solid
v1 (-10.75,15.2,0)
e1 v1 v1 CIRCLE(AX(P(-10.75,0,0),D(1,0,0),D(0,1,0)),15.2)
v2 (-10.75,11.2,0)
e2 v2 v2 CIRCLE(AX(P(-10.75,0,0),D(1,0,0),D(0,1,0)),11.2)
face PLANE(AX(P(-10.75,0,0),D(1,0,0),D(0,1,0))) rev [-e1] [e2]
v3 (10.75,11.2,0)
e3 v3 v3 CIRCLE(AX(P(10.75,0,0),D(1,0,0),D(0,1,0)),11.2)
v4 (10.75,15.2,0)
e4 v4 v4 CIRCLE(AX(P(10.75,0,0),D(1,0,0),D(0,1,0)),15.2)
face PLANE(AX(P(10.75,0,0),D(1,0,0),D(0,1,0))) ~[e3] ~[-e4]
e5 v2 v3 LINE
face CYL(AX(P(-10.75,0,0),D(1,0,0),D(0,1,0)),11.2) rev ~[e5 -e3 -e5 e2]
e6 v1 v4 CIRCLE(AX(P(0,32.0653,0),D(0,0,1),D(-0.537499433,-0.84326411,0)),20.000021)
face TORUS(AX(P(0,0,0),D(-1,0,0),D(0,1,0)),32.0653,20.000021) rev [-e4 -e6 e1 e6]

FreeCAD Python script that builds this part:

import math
import FreeCAD as App
import Part
import Sketcher
Q = App.Units.Quantity

doc = App.newDocument("Part")
body = doc.addObject("PartDesign::Body", "Body")

# Sketch on XY plane
sketch1 = body.newObject("Sketcher::SketchObject", "Sketch")
sketch1.AttachmentSupport = (doc.getObject("XY_Plane"), [""])
sketch1.MapMode = "FlatFace"
sketch1.addGeometry([
    Part.LineSegment(App.Vector(-10.75, 15.2, 0), App.Vector(-10.75, 11.2, 0)),
    Part.LineSegment(App.Vector(-10.75, 11.2, 0), App.Vector(10.75, 11.2, 0)),
    Part.LineSegment(App.Vector(10.75, 11.2, 0), App.Vector(10.75, 15.2, 0)),
    Part.ArcOfCircle(Part.Circle(App.Vector(0, 32.0653, 0), App.Vector(0, 0, 1), 20.000021), math.radians(-122.513576), math.radians(-57.486424)),
], False)
sketch1.addConstraint([
    Sketcher.Constraint("Coincident", 0, 2, 1, 1),
    Sketcher.Constraint("Coincident", 1, 2, 2, 1),
    Sketcher.Constraint("Coincident", 2, 2, 3, 2),
    Sketcher.Constraint("Coincident", 3, 1, 0, 1),
    Sketcher.Constraint("Vertical", 0),
    Sketcher.Constraint("Horizontal", 1),
    Sketcher.Constraint("Vertical", 2),
    Sketcher.Constraint("Symmetric", 2, 2, 3, 1, -2),
    Sketcher.Constraint("Radius", 3, Q("20 mm")),
    Sketcher.Constraint("DistanceY", 0, 2, 0, 1, Q("4 mm")),
    Sketcher.Constraint("DistanceX", 1, 1, 1, 2, Q("21.5 mm")),
    Sketcher.Constraint("DistanceY", -1, 1, 0, 2, Q("11.2 mm")),
])
revolution = body.newObject("PartDesign::Revolution", "Revolution")
revolution.Profile = sketch1
revolution.ReferenceAxis = (sketch1, ["H_Axis"])
revolution.Angle = 360

doc.recompute()
